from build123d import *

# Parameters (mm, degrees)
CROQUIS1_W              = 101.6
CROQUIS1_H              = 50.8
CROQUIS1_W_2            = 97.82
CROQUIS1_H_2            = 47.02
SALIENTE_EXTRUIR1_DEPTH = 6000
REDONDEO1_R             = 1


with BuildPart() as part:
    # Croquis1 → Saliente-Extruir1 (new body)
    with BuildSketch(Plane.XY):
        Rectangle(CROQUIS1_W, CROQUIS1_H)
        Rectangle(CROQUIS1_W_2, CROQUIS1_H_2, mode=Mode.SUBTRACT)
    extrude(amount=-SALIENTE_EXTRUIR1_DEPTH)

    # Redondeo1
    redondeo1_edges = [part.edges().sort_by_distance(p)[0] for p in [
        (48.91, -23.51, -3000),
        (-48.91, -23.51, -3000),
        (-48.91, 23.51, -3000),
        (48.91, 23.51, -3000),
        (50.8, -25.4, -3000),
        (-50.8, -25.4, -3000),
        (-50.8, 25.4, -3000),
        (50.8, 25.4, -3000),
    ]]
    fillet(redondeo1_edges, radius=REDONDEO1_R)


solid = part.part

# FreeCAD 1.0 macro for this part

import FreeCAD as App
import Part
import Sketcher
Q = App.Units.Quantity


def edges_at(feature, points):
    """Names of the edges that pass closest to the given points."""
    edges = feature.Shape.Edges
    near = lambda p: min(range(len(edges)), key=lambda i: edges[i].distToShape(Part.Vertex(*p))[0])
    return sorted({f"Edge{near(p) + 1}" for p in points})


def add_polygon(sketch, points):
    """Adds a closed chain of lines whose ends are joined by coincident constraints."""
    first, n = sketch.GeometryCount, len(points)
    for a, b in zip(points, points[1:] + points[:1]):
        sketch.addGeometry(Part.LineSegment(App.Vector(*a, 0), App.Vector(*b, 0)), False)
    for i in range(n):
        sketch.addConstraint(Sketcher.Constraint("Coincident", first + i, 2, first + (i + 1) % n, 1))

doc = App.newDocument("Part")
params = doc.addObject("Spreadsheet::Sheet", "Params")
for row, (alias, value) in enumerate([
    ("sketch1_width", "101.6 mm"),
    ("sketch1_height", "50.8 mm"),
    ("sketch1_width2", "97.82 mm"),
    ("sketch1_height2", "47.02 mm"),
    ("pad1_length", "6000 mm"),
    ("fillet_radius", "1 mm"),
], start=1):
    params.set(f"A{row}", alias)
    params.set(f"B{row}", "=" + value)
    params.setAlias(f"B{row}", alias)

body = doc.addObject("PartDesign::Body", "Body")

sketch1 = body.newObject("Sketcher::SketchObject", "Sketch")
sketch1.AttachmentSupport = (doc.getObject("XY_Plane"), [""])
sketch1.MapMode = "FlatFace"
add_polygon(sketch1, [(-50.8, 25.4), (-50.8, -25.4), (50.8, -25.4), (50.8, 25.4)])
add_polygon(sketch1, [(48.91, -23.51), (-48.91, -23.51), (-48.91, 23.51), (48.91, 23.51)])
sketch1.addConstraint([
    Sketcher.Constraint("Vertical", 0),
    Sketcher.Constraint("Horizontal", 1),
    Sketcher.Constraint("Vertical", 2),
    Sketcher.Constraint("Horizontal", 3),
    Sketcher.Constraint("Horizontal", 4),
    Sketcher.Constraint("Vertical", 5),
    Sketcher.Constraint("Horizontal", 6),
    Sketcher.Constraint("Vertical", 7),
    Sketcher.Constraint("Symmetric", 0, 2, 2, 2, -1, 1),
    Sketcher.Constraint("Symmetric", 4, 2, 6, 2, -1, 1),
    Sketcher.Constraint("DistanceX", 1, 1, 1, 2, Q("101.6 mm")),
    Sketcher.Constraint("DistanceY", 0, 2, 0, 1, Q("50.8 mm")),
    Sketcher.Constraint("DistanceX", 4, 2, 4, 1, Q("97.82 mm")),
    Sketcher.Constraint("DistanceY", 5, 1, 5, 2, Q("47.02 mm")),
])
sketch1.setExpression("Constraints[18]", "Params.sketch1_width")
sketch1.setExpression("Constraints[19]", "Params.sketch1_height")
sketch1.setExpression("Constraints[20]", "Params.sketch1_width2")
sketch1.setExpression("Constraints[21]", "Params.sketch1_height2")
pad1 = body.newObject("PartDesign::Pad", "Pad")
pad1.Profile = sketch1
pad1.setExpression("Length", "Params.pad1_length")
pad1.Reversed = True
doc.recompute()

fillet = body.newObject("PartDesign::Fillet", "Fillet")
fillet.Base = (pad1, edges_at(pad1, [
    (48.91, -23.51, -3000),
    (-48.91, -23.51, -3000),
    (-48.91, 23.51, -3000),
    (48.91, 23.51, -3000),
    (50.8, -25.4, -3000),
    (-50.8, -25.4, -3000),
    (-50.8, 25.4, -3000),
    (50.8, 25.4, -3000),
]))
fillet.setExpression("Radius", "Params.fillet_radius")

doc.recompute()
